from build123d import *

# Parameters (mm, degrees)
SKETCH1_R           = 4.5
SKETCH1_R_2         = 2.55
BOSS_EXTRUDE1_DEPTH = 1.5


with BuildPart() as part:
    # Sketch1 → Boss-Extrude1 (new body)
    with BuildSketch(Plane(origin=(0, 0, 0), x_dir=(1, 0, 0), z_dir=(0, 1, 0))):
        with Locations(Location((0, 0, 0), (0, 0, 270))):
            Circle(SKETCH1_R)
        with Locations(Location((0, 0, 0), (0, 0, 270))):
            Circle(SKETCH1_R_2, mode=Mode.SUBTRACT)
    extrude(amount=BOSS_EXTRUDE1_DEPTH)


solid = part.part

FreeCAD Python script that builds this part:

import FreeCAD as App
import Part
import Sketcher

V = App.Vector
Q = App.Units.Quantity

doc = App.newDocument("Part")
body = doc.addObject("PartDesign::Body", "Body")

# Sketch on XZ plane
sketch1 = body.newObject("Sketcher::SketchObject", "Sketch")
sketch1.AttachmentSupport = (doc.getObject("XZ_Plane"), [""])
sketch1.MapMode = "FlatFace"
sketch1.addGeometry([
    Part.Circle(V(0, 0, 0), V(0, 0, 1), 4.5),
    Part.Circle(V(0, 0, 0), V(0, 0, 1), 2.55),
], False)
sketch1.addConstraint([
    Sketcher.Constraint("Coincident", 0, 3, -1, 1),
    Sketcher.Constraint("Coincident", 1, 3, -1, 1),
    Sketcher.Constraint("Diameter", 0, Q("9 mm")),
    Sketcher.Constraint("Diameter", 1, Q("5.1 mm")),
])
pad1 = body.newObject("PartDesign::Pad", "Pad")
pad1.Profile = sketch1
pad1.Length = 1.5
pad1.Reversed = True

doc.recompute()
